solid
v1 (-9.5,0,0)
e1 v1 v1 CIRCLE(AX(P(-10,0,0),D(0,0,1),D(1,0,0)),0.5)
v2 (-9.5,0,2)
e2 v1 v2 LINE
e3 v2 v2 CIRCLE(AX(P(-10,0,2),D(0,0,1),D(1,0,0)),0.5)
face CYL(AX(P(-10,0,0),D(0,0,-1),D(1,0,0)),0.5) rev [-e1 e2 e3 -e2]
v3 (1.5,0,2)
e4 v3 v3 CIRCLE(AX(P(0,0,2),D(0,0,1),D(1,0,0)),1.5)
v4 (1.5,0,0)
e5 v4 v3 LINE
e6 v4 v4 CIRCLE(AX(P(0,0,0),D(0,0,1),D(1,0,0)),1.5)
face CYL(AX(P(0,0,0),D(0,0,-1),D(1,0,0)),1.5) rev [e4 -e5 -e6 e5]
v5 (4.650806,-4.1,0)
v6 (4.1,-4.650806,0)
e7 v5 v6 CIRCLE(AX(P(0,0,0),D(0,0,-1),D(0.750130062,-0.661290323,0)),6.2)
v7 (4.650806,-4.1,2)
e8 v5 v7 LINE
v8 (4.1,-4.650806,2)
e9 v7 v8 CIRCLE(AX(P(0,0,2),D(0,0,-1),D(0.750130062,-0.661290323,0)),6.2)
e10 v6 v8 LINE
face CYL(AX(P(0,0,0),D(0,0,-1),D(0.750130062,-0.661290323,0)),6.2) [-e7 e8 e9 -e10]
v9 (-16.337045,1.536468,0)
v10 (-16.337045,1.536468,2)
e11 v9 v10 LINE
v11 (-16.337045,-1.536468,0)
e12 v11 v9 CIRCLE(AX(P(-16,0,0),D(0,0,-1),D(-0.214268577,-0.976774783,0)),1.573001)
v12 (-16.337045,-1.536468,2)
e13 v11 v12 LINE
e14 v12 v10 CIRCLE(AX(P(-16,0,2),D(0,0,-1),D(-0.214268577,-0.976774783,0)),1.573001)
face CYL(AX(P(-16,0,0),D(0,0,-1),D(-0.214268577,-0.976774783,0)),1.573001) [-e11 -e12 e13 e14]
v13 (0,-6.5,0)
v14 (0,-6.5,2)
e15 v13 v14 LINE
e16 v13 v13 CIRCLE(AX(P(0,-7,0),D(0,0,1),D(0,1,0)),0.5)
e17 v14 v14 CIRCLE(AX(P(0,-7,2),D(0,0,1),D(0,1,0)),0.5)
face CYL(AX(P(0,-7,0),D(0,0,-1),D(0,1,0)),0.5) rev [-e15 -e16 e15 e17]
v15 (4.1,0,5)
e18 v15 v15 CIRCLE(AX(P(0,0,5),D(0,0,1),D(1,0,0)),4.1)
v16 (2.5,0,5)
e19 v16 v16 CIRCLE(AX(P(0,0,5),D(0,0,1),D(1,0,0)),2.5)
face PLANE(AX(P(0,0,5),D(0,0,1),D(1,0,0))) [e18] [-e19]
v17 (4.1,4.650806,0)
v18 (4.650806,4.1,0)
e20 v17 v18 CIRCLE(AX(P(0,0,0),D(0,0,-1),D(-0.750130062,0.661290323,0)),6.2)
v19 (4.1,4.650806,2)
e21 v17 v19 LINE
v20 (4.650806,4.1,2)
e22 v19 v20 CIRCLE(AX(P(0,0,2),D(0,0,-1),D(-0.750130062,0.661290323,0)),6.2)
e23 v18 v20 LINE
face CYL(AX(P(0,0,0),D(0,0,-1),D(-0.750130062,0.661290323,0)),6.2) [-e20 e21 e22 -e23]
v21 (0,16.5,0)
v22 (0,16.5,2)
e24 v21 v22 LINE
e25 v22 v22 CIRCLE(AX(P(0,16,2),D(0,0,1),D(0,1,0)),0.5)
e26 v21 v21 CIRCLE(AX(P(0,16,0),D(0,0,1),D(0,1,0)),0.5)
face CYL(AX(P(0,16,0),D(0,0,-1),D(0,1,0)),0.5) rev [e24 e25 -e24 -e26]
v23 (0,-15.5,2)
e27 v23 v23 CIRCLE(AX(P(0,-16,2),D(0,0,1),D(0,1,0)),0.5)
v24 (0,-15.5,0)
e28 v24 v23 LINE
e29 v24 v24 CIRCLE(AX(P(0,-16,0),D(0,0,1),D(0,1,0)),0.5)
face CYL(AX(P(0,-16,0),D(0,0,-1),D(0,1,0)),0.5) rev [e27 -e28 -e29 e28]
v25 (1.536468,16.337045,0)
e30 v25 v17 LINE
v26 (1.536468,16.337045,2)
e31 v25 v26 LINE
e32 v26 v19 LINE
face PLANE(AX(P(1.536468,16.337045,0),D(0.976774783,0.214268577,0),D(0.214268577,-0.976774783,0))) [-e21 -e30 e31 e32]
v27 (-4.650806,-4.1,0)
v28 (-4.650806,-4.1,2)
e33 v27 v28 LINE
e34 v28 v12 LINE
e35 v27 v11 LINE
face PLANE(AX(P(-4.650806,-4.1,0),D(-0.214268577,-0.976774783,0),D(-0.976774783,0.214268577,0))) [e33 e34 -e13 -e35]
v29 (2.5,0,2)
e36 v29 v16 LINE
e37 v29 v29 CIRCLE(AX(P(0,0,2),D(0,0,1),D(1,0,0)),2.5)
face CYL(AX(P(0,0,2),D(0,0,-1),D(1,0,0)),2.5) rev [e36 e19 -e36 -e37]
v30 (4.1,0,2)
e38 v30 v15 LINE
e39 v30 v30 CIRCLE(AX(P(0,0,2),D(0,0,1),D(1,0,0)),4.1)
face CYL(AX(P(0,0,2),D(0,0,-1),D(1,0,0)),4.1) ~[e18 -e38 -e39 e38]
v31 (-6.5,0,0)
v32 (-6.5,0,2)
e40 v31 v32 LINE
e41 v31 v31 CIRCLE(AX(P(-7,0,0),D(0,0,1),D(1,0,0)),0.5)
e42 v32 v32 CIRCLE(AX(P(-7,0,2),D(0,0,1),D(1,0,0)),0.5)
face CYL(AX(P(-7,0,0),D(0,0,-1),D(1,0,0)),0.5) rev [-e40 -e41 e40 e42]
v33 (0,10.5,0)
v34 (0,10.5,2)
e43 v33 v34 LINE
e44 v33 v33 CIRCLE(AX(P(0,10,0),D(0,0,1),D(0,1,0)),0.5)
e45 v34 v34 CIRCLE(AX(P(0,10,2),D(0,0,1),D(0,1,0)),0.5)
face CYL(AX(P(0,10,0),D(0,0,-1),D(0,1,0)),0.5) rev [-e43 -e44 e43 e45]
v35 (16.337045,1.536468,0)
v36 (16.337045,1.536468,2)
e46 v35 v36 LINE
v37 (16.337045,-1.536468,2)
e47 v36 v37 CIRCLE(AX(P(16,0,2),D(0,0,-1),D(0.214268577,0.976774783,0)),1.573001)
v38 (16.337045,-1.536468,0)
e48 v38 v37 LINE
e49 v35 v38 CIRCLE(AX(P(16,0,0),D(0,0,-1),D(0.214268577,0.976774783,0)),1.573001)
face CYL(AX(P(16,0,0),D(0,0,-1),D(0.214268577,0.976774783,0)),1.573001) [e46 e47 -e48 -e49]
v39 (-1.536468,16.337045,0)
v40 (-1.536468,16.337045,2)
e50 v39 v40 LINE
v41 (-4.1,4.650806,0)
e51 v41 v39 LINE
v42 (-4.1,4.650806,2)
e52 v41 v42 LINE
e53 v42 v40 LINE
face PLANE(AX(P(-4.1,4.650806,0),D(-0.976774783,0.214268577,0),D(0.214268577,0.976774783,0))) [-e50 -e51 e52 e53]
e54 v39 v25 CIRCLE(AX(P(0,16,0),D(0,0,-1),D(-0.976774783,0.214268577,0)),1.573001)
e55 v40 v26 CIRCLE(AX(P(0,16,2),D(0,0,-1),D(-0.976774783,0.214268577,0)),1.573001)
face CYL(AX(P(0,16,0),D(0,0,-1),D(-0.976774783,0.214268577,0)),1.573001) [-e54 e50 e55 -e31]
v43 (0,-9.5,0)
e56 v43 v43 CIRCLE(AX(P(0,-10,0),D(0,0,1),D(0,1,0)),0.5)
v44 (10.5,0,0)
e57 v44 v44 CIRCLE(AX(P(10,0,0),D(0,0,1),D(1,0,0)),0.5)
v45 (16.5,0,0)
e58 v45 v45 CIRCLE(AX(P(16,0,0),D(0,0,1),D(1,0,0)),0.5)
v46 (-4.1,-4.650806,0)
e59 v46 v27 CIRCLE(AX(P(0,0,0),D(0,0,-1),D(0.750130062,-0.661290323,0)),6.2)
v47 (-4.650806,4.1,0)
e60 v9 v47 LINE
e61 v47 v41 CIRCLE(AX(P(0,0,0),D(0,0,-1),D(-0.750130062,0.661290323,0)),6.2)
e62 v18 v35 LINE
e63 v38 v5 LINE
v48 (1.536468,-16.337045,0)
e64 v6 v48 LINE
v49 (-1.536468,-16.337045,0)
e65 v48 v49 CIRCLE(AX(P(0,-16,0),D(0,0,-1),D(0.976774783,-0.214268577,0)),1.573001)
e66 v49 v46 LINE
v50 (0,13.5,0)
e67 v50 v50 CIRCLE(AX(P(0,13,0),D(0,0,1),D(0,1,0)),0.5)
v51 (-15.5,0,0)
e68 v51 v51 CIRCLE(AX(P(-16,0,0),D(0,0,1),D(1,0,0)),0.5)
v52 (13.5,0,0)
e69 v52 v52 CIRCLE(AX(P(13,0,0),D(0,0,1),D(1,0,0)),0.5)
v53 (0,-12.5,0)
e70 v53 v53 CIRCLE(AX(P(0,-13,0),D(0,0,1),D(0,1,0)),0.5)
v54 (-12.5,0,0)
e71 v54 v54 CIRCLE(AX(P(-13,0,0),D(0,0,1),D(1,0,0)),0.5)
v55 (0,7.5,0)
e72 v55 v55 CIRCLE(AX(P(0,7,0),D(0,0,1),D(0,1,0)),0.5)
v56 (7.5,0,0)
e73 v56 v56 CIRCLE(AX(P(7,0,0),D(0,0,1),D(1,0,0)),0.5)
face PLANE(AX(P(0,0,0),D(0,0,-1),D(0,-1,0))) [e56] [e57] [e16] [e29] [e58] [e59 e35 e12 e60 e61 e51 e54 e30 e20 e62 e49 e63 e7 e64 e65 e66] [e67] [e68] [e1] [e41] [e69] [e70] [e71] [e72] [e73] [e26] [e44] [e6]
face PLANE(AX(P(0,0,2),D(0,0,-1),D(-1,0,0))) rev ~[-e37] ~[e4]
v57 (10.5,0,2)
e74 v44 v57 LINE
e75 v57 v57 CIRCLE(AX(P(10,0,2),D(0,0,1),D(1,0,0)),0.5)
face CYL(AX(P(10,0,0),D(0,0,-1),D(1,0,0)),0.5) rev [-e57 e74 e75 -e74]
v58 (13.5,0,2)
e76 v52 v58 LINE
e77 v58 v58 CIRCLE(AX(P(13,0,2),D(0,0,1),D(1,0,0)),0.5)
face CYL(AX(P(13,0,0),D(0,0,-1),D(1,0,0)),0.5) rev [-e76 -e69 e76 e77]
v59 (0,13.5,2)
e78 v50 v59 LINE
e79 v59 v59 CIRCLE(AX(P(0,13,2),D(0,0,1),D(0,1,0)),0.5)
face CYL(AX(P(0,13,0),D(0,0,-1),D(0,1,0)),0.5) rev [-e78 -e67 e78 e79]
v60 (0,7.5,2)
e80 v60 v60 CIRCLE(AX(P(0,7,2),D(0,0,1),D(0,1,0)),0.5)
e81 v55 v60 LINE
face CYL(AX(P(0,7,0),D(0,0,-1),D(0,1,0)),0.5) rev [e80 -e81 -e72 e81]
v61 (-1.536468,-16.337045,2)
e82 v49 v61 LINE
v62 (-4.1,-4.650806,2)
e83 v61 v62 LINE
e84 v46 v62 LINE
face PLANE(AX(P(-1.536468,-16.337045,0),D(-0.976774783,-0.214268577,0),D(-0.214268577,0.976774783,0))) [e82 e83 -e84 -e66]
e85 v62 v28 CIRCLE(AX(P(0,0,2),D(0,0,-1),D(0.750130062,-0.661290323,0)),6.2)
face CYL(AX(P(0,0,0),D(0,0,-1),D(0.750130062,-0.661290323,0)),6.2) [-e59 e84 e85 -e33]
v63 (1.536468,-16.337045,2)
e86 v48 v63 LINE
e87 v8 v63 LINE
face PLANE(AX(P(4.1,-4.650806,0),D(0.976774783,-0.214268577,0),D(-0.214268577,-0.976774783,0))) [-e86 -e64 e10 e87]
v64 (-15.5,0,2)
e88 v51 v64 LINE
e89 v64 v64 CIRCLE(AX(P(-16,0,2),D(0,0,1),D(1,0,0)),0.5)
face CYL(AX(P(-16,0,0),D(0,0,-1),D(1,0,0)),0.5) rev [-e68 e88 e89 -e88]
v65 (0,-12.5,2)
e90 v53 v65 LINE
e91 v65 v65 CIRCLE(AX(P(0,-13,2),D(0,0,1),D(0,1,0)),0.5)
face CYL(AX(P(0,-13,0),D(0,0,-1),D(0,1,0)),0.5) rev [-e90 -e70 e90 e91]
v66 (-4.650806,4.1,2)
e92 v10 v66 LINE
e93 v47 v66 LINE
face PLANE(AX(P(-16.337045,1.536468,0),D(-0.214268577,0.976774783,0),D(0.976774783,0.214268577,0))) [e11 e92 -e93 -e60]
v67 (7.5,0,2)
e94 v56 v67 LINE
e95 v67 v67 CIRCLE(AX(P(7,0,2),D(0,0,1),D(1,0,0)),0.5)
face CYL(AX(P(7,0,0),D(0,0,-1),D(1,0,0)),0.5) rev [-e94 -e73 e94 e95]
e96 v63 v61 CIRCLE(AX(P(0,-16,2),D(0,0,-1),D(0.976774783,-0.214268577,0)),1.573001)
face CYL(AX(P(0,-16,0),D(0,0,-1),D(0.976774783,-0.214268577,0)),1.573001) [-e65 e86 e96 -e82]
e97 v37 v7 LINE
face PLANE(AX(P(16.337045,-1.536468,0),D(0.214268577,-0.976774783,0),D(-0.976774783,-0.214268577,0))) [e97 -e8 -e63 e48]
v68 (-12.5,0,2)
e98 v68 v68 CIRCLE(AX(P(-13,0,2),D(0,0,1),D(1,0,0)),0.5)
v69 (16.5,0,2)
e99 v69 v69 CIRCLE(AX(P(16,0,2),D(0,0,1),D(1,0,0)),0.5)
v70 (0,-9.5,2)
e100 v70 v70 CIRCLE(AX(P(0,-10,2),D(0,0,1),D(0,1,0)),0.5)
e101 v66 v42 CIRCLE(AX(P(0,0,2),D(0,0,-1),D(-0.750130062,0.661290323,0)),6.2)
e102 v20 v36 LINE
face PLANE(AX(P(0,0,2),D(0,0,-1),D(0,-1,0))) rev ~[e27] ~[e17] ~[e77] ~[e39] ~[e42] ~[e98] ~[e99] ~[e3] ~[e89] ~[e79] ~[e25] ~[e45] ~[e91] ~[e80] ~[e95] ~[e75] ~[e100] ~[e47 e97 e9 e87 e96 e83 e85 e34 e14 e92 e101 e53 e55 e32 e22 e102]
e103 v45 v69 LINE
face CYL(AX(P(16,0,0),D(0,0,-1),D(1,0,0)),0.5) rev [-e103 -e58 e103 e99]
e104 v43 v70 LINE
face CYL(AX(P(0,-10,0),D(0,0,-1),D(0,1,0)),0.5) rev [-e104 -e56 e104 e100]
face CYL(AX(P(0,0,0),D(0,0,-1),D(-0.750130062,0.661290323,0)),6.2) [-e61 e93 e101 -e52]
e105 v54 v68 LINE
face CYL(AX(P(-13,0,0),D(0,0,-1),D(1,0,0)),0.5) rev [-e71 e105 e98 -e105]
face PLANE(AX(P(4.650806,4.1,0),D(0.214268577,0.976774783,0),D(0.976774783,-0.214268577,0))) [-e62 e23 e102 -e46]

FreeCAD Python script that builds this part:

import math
import FreeCAD as App
import Part
import Sketcher
from FreeCAD import Vector

doc = App.newDocument("Part")
body = doc.addObject("PartDesign::Body", "Body")

# Sketch on XY plane
sketch1 = body.newObject("Sketcher::SketchObject", "Sketch")
sketch1.AttachmentSupport = (doc.getObject("XY_Plane"), [""])
sketch1.MapMode = "FlatFace"
sketch1.addGeometry(Part.LineSegment(Vector(-4.7, 4.1, 0), Vector(-16.3, 1.5, 0)), False)
sketch1.addGeometry(Part.ArcOfCircle(Part.Circle(Vector(-16, 0, 0), Vector(0, 0, 1), 1.6), math.radians(102), math.radians(258)), False)
sketch1.addGeometry(Part.LineSegment(Vector(-16.3, -1.5, 0), Vector(-4.7, -4.1, 0)), False)
sketch1.addGeometry(Part.ArcOfCircle(Part.Circle(Vector(0, 0, 0), Vector(0, 0, 1), 6.2), math.radians(-139), math.radians(-41)), False)
sketch1.addGeometry(Part.LineSegment(Vector(4.7, -4.1, 0), Vector(16.3, -1.5, 0)), False)
sketch1.addGeometry(Part.ArcOfCircle(Part.Circle(Vector(16, 0, 0), Vector(0, 0, 1), 1.6), math.radians(-78), math.radians(78)), False)
sketch1.addGeometry(Part.LineSegment(Vector(16.3, 1.5, 0), Vector(4.7, 4.1, 0)), False)
sketch1.addGeometry(Part.ArcOfCircle(Part.Circle(Vector(0, 0, 0), Vector(0, 0, 1), 6.2), math.radians(41), math.radians(139)), False)
sketch1.addGeometry(Part.Circle(Vector(16, 0, 0), Vector(0, 0, 1), 0.5), False)
sketch1.addGeometry(Part.Circle(Vector(13, 0, 0), Vector(0, 0, 1), 0.5), False)
sketch1.addGeometry(Part.Circle(Vector(10, 0, 0), Vector(0, 0, 1), 0.5), False)
sketch1.addGeometry(Part.Circle(Vector(7, 0, 0), Vector(0, 0, 1), 0.5), False)
sketch1.addGeometry(Part.Circle(Vector(0, 0, 0), Vector(0, 0, 1), 1.5), False)
sketch1.addGeometry(Part.Circle(Vector(-7, 0, 0), Vector(0, 0, 1), 0.5), False)
sketch1.addGeometry(Part.Circle(Vector(-10, 0, 0), Vector(0, 0, 1), 0.5), False)
sketch1.addGeometry(Part.Circle(Vector(-13, 0, 0), Vector(0, 0, 1), 0.5), False)
sketch1.addGeometry(Part.Circle(Vector(-16, 0, 0), Vector(0, 0, 1), 0.5), False)
sketch1.addConstraint(Sketcher.Constraint("Tangent", 0, 2, 1, 1))
sketch1.addConstraint(Sketcher.Constraint("Tangent", 1, 2, 2, 1))
sketch1.addConstraint(Sketcher.Constraint("Coincident", 2, 2, 3, 1))
sketch1.addConstraint(Sketcher.Constraint("Coincident", 3, 2, 4, 1))
sketch1.addConstraint(Sketcher.Constraint("Tangent", 4, 2, 5, 1))
sketch1.addConstraint(Sketcher.Constraint("Tangent", 5, 2, 6, 1))
sketch1.addConstraint(Sketcher.Constraint("Coincident", 6, 2, 7, 1))
sketch1.addConstraint(Sketcher.Constraint("Coincident", 7, 2, 0, 1))
sketch1.addConstraint(Sketcher.Constraint("Coincident", 3, 3, -1, 1))
sketch1.addConstraint(Sketcher.Constraint("Coincident", 7, 3, -1, 1))
sketch1.addConstraint(Sketcher.Constraint("Coincident", 12, 3, -1, 1))
sketch1.addConstraint(Sketcher.Constraint("Coincident", 8, 3, 5, 3))
sketch1.addConstraint(Sketcher.Constraint("Coincident", 16, 3, 1, 3))
sketch1.addConstraint(Sketcher.Constraint("Equal", 1, 5))
sketch1.addConstraint(Sketcher.Constraint("Equal", 3, 7))
sketch1.addConstraint(Sketcher.Constraint("Equal", 8, 9))
sketch1.addConstraint(Sketcher.Constraint("Equal", 9, 10))
sketch1.addConstraint(Sketcher.Constraint("Equal", 10, 11))
sketch1.addConstraint(Sketcher.Constraint("Equal", 11, 13))
sketch1.addConstraint(Sketcher.Constraint("Equal", 13, 14))
sketch1.addConstraint(Sketcher.Constraint("Equal", 14, 15))
sketch1.addConstraint(Sketcher.Constraint("Equal", 15, 16))
sketch1.addConstraint(Sketcher.Constraint("Symmetric", 1, 3, 5, 3, -1, 1))
sketch1.addConstraint(Sketcher.Constraint("Symmetric", 11, 3, 13, 3, -1, 1))
sketch1.addConstraint(Sketcher.Constraint("Symmetric", 10, 3, 14, 3, -1, 1))
sketch1.addConstraint(Sketcher.Constraint("Symmetric", 9, 3, 15, 3, -1, 1))
sketch1.addConstraint(Sketcher.Constraint("Symmetric", 1, 2, 4, 2, -2))
sketch1.addConstraint(Sketcher.Constraint("PointOnObject", 9, 3, -1))
sketch1.addConstraint(Sketcher.Constraint("PointOnObject", 10, 3, -1))
sketch1.addConstraint(Sketcher.Constraint("PointOnObject", 11, 3, -1))
sketch1.addConstraint(Sketcher.Constraint("Parallel", 0, 4))
sketch1.addConstraint(Sketcher.Constraint("Parallel", 2, 6))
sketch1.addConstraint(Sketcher.Constraint("Diameter", 8, 1.0))
sketch1.addConstraint(Sketcher.Constraint("Diameter", 12, 3.0))
sketch1.addConstraint(Sketcher.Constraint("Radius", 3, 6.2))
sketch1.addConstraint(Sketcher.Constraint("DistanceX", 1, 3, -1, 1, 16.0))
sketch1.addConstraint(Sketcher.Constraint("DistanceX", -1, 1, 9, 3, 13.0))
sketch1.addConstraint(Sketcher.Constraint("DistanceX", -1, 1, 10, 3, 10.0))
sketch1.addConstraint(Sketcher.Constraint("DistanceX", -1, 1, 11, 3, 7.0))
sketch1.addConstraint(Sketcher.Constraint("Radius", 1, 1.573001))
sketch1.addConstraint(Sketcher.Constraint("DistanceY", 2, 2, -1, 1, 4.1))
pad1 = body.newObject("PartDesign::Pad", "Pad")
pad1.Profile = sketch1
pad1.Length = 2

# Sketch on XY plane
sketch2 = body.newObject("Sketcher::SketchObject", "Sketch001")
sketch2.AttachmentSupport = (doc.getObject("XY_Plane"), [""])
sketch2.MapMode = "FlatFace"
sketch2.AttachmentOffset = App.Placement(Vector(0, 0, 2), App.Rotation())
sketch2.addGeometry(Part.Circle(Vector(0, 0, 0), Vector(0, 0, 1), 4.1), False)
sketch2.addGeometry(Part.Circle(Vector(0, 0, 0), Vector(0, 0, 1), 2.5), False)
sketch2.addConstraint(Sketcher.Constraint("Coincident", 0, 3, -1, 1))
sketch2.addConstraint(Sketcher.Constraint("Coincident", 1, 3, -1, 1))
sketch2.addConstraint(Sketcher.Constraint("Diameter", 1, 5.0))
sketch2.addConstraint(Sketcher.Constraint("Diameter", 0, 8.2))
pad2 = body.newObject("PartDesign::Pad", "Pad001")
pad2.Profile = sketch2
pad2.Length = 3
doc.recompute()

polarpattern = body.newObject("PartDesign::PolarPattern", "PolarPattern")
polarpattern.Originals = [pad1]
polarpattern.Axis = (doc.getObject("Z_Axis"), [""])
polarpattern.Angle = 90
polarpattern.Occurrences = 2
body.Tip = polarpattern

doc.recompute()
